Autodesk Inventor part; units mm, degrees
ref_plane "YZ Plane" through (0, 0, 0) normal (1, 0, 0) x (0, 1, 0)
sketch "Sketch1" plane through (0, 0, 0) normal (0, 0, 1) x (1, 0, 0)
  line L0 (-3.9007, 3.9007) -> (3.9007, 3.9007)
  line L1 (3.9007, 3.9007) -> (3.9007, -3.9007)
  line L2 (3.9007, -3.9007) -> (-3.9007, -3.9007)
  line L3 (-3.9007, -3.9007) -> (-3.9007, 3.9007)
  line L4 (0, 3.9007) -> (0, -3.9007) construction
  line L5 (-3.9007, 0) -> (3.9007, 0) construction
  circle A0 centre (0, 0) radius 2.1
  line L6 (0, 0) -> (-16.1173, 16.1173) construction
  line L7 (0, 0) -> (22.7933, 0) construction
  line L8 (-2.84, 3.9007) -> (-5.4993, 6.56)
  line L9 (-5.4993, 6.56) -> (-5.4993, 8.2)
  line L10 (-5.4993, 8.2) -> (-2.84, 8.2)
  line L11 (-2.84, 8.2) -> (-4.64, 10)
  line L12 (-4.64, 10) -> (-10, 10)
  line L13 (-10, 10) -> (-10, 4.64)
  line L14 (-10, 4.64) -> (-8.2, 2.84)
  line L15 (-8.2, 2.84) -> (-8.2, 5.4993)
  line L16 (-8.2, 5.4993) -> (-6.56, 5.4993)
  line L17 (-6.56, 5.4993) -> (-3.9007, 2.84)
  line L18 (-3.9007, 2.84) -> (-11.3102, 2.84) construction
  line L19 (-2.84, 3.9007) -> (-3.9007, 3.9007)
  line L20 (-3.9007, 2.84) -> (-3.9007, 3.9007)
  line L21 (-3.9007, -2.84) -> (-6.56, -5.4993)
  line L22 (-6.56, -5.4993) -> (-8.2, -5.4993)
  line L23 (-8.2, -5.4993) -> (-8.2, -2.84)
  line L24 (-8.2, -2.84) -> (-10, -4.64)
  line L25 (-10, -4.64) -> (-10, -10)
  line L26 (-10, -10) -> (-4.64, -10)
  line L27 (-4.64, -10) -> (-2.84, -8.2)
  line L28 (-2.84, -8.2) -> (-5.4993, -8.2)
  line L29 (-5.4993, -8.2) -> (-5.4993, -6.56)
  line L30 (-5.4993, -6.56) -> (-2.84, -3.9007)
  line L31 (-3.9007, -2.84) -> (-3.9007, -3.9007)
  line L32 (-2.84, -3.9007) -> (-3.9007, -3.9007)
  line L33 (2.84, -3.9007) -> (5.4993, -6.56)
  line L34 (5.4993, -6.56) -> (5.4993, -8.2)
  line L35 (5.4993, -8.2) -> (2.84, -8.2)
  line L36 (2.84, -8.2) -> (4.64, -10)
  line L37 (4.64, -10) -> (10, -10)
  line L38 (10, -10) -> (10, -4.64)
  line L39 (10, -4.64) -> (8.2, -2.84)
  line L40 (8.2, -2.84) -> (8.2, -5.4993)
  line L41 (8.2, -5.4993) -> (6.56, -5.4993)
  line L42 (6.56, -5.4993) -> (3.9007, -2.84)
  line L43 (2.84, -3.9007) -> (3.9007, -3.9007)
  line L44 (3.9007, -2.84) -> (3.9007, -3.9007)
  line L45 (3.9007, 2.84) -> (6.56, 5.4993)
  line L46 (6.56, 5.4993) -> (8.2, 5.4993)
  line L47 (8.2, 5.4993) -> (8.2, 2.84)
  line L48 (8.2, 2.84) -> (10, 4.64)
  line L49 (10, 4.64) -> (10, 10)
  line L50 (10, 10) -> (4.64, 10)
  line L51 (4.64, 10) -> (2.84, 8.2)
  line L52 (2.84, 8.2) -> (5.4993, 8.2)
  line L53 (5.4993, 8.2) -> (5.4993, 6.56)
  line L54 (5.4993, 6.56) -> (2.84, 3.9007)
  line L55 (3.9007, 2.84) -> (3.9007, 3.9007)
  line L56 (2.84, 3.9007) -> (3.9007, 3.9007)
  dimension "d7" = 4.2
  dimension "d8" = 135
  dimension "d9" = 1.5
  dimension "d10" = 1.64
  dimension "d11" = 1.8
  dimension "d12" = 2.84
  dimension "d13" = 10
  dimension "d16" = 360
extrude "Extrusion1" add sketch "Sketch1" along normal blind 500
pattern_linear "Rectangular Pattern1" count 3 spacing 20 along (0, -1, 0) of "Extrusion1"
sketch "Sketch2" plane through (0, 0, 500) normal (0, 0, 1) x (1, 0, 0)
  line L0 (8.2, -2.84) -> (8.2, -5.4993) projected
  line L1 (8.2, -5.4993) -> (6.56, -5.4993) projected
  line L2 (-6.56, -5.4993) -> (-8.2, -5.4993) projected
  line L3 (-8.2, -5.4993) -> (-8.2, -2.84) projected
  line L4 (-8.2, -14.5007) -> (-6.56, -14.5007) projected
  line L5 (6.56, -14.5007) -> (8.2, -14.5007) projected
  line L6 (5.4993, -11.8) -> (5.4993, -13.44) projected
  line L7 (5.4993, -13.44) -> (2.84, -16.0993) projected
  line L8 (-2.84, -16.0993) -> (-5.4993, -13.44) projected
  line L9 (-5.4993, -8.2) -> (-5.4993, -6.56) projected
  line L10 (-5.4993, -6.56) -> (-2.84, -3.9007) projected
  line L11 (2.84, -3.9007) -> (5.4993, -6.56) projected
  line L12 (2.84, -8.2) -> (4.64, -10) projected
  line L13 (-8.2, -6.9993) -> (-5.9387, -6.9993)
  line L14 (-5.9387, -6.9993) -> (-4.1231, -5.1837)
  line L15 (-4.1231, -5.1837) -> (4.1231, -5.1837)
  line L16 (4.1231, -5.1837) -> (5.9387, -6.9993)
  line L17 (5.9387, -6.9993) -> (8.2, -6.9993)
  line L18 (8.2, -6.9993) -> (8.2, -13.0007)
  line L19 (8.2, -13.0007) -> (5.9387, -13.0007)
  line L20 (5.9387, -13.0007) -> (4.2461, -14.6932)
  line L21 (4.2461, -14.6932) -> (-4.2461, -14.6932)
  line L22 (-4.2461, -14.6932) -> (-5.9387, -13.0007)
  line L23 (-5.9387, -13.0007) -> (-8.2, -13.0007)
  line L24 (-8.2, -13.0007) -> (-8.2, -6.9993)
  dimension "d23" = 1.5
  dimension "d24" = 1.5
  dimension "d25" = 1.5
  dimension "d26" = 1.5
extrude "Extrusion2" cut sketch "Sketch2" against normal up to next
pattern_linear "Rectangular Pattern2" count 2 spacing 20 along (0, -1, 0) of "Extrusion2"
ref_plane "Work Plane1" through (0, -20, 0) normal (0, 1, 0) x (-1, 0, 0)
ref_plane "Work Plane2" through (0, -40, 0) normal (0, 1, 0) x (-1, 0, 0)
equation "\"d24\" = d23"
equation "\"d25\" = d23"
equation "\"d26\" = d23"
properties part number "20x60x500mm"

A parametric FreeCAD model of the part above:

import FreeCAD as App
import Part
import Sketcher

V = App.Vector

doc = App.newDocument("Part")
body = doc.addObject("PartDesign::Body", "Body")

sketch1 = body.newObject("Sketcher::SketchObject", "Sketch")
sketch1.AttachmentSupport = (doc.getObject("XY_Plane"), [""])
sketch1.MapMode = "FlatFace"
sketch1.addGeometry(Part.LineSegment(V(-6.6, 5.5, 0), V(-3.9, 2.8, 0)), False)
sketch1.addGeometry(Part.LineSegment(V(-3.9, 2.8, 0), V(-3.9, -2.8, 0)), False)
sketch1.addGeometry(Part.LineSegment(V(-3.9, -2.8, 0), V(-6.6, -5.5, 0)), False)
sketch1.addGeometry(Part.LineSegment(V(-6.6, -5.5, 0), V(-8.2, -5.5, 0)), False)
sketch1.addGeometry(Part.LineSegment(V(-8.2, -5.5, 0), V(-8.2, -2.8, 0)), False)
sketch1.addGeometry(Part.LineSegment(V(-8.2, -2.8, 0), V(-10, -4.6, 0)), False)
sketch1.addGeometry(Part.LineSegment(V(-10, -4.6, 0), V(-10, -10, 0)), False)
sketch1.addGeometry(Part.LineSegment(V(-10, -10, 0), V(-4.6, -10, 0)), False)
sketch1.addGeometry(Part.LineSegment(V(-4.6, -10, 0), V(-2.8, -8.2, 0)), False)
sketch1.addGeometry(Part.LineSegment(V(-2.8, -8.2, 0), V(-5.5, -8.2, 0)), False)
sketch1.addGeometry(Part.LineSegment(V(-5.5, -8.2, 0), V(-5.5, -6.6, 0)), False)
sketch1.addGeometry(Part.LineSegment(V(-5.5, -6.6, 0), V(-2.8, -3.9, 0)), False)
sketch1.addGeometry(Part.LineSegment(V(-2.8, -3.9, 0), V(2.8, -3.9, 0)), False)
sketch1.addGeometry(Part.LineSegment(V(2.8, -3.9, 0), V(5.5, -6.6, 0)), False)
sketch1.addGeometry(Part.LineSegment(V(5.5, -6.6, 0), V(5.5, -8.2, 0)), False)
sketch1.addGeometry(Part.LineSegment(V(5.5, -8.2, 0), V(2.8, -8.2, 0)), False)
sketch1.addGeometry(Part.LineSegment(V(2.8, -8.2, 0), V(4.6, -10, 0)), False)
sketch1.addGeometry(Part.LineSegment(V(4.6, -10, 0), V(10, -10, 0)), False)
sketch1.addGeometry(Part.LineSegment(V(10, -10, 0), V(10, -4.6, 0)), False)
sketch1.addGeometry(Part.LineSegment(V(10, -4.6, 0), V(8.2, -2.8, 0)), False)
sketch1.addGeometry(Part.LineSegment(V(8.2, -2.8, 0), V(8.2, -5.5, 0)), False)
sketch1.addGeometry(Part.LineSegment(V(8.2, -5.5, 0), V(6.6, -5.5, 0)), False)
sketch1.addGeometry(Part.LineSegment(V(6.6, -5.5, 0), V(3.9, -2.8, 0)), False)
sketch1.addGeometry(Part.LineSegment(V(3.9, -2.8, 0), V(3.9, 2.8, 0)), False)
sketch1.addGeometry(Part.LineSegment(V(3.9, 2.8, 0), V(6.6, 5.5, 0)), False)
sketch1.addGeometry(Part.LineSegment(V(6.6, 5.5, 0), V(8.2, 5.5, 0)), False)
sketch1.addGeometry(Part.LineSegment(V(8.2, 5.5, 0), V(8.2, 2.8, 0)), False)
sketch1.addGeometry(Part.LineSegment(V(8.2, 2.8, 0), V(10, 4.6, 0)), False)
sketch1.addGeometry(Part.LineSegment(V(10, 4.6, 0), V(10, 10, 0)), False)
sketch1.addGeometry(Part.LineSegment(V(10, 10, 0), V(4.6, 10, 0)), False)
sketch1.addGeometry(Part.LineSegment(V(4.6, 10, 0), V(2.8, 8.2, 0)), False)
sketch1.addGeometry(Part.LineSegment(V(2.8, 8.2, 0), V(5.5, 8.2, 0)), False)
sketch1.addGeometry(Part.LineSegment(V(5.5, 8.2, 0), V(5.5, 6.6, 0)), False)
sketch1.addGeometry(Part.LineSegment(V(5.5, 6.6, 0), V(2.8, 3.9, 0)), False)
sketch1.addGeometry(Part.LineSegment(V(2.8, 3.9, 0), V(-2.8, 3.9, 0)), False)
sketch1.addGeometry(Part.LineSegment(V(-2.8, 3.9, 0), V(-5.5, 6.6, 0)), False)
sketch1.addGeometry(Part.LineSegment(V(-5.5, 6.6, 0), V(-5.5, 8.2, 0)), False)
sketch1.addGeometry(Part.LineSegment(V(-5.5, 8.2, 0), V(-2.8, 8.2, 0)), False)
sketch1.addGeometry(Part.LineSegment(V(-2.8, 8.2, 0), V(-4.6, 10, 0)), False)
sketch1.addGeometry(Part.LineSegment(V(-4.6, 10, 0), V(-10, 10, 0)), False)
sketch1.addGeometry(Part.LineSegment(V(-10, 10, 0), V(-10, 4.6, 0)), False)
sketch1.addGeometry(Part.LineSegment(V(-10, 4.6, 0), V(-8.2, 2.8, 0)), False)
sketch1.addGeometry(Part.LineSegment(V(-8.2, 2.8, 0), V(-8.2, 5.5, 0)), False)
sketch1.addGeometry(Part.LineSegment(V(-8.2, 5.5, 0), V(-6.6, 5.5, 0)), False)
sketch1.addGeometry(Part.Circle(V(0, 0, 0), V(0, 0, 1), 2.1), False)
sketch1.addConstraint(Sketcher.Constraint("Coincident", 0, 2, 1, 1))
sketch1.addConstraint(Sketcher.Constraint("Coincident", 1, 2, 2, 1))
sketch1.addConstraint(Sketcher.Constraint("Coincident", 2, 2, 3, 1))
sketch1.addConstraint(Sketcher.Constraint("Coincident", 3, 2, 4, 1))
sketch1.addConstraint(Sketcher.Constraint("Coincident", 4, 2, 5, 1))
sketch1.addConstraint(Sketcher.Constraint("Coincident", 5, 2, 6, 1))
sketch1.addConstraint(Sketcher.Constraint("Coincident", 6, 2, 7, 1))
sketch1.addConstraint(Sketcher.Constraint("Coincident", 7, 2, 8, 1))
sketch1.addConstraint(Sketcher.Constraint("Coincident", 8, 2, 9, 1))
sketch1.addConstraint(Sketcher.Constraint("Coincident", 9, 2, 10, 1))
sketch1.addConstraint(Sketcher.Constraint("Coincident", 10, 2, 11, 1))
sketch1.addConstraint(Sketcher.Constraint("Coincident", 11, 2, 12, 1))
sketch1.addConstraint(Sketcher.Constraint("Coincident", 12, 2, 13, 1))
sketch1.addConstraint(Sketcher.Constraint("Coincident", 13, 2, 14, 1))
sketch1.addConstraint(Sketcher.Constraint("Coincident", 14, 2, 15, 1))
sketch1.addConstraint(Sketcher.Constraint("Coincident", 15, 2, 16, 1))
sketch1.addConstraint(Sketcher.Constraint("Coincident", 16, 2, 17, 1))
sketch1.addConstraint(Sketcher.Constraint("Coincident", 17, 2, 18, 1))
sketch1.addConstraint(Sketcher.Constraint("Coincident", 18, 2, 19, 1))
sketch1.addConstraint(Sketcher.Constraint("Coincident", 19, 2, 20, 1))
sketch1.addConstraint(Sketcher.Constraint("Coincident", 20, 2, 21, 1))
sketch1.addConstraint(Sketcher.Constraint("Coincident", 21, 2, 22, 1))
sketch1.addConstraint(Sketcher.Constraint("Coincident", 22, 2, 23, 1))
sketch1.addConstraint(Sketcher.Constraint("Coincident", 23, 2, 24, 1))
sketch1.addConstraint(Sketcher.Constraint("Coincident", 24, 2, 25, 1))
sketch1.addConstraint(Sketcher.Constraint("Coincident", 25, 2, 26, 1))
sketch1.addConstraint(Sketcher.Constraint("Coincident", 26, 2, 27, 1))
sketch1.addConstraint(Sketcher.Constraint("Coincident", 27, 2, 28, 1))
sketch1.addConstraint(Sketcher.Constraint("Coincident", 28, 2, 29, 1))
sketch1.addConstraint(Sketcher.Constraint("Coincident", 29, 2, 30, 1))
sketch1.addConstraint(Sketcher.Constraint("Coincident", 30, 2, 31, 1))
sketch1.addConstraint(Sketcher.Constraint("Coincident", 31, 2, 32, 1))
sketch1.addConstraint(Sketcher.Constraint("Coincident", 32, 2, 33, 1))
sketch1.addConstraint(Sketcher.Constraint("Coincident", 33, 2, 34, 1))
sketch1.addConstraint(Sketcher.Constraint("Coincident", 34, 2, 35, 1))
sketch1.addConstraint(Sketcher.Constraint("Coincident", 35, 2, 36, 1))
sketch1.addConstraint(Sketcher.Constraint("Coincident", 36, 2, 37, 1))
sketch1.addConstraint(Sketcher.Constraint("Coincident", 37, 2, 38, 1))
sketch1.addConstraint(Sketcher.Constraint("Coincident", 38, 2, 39, 1))
sketch1.addConstraint(Sketcher.Constraint("Coincident", 39, 2, 40, 1))
sketch1.addConstraint(Sketcher.Constraint("Coincident", 40, 2, 41, 1))
sketch1.addConstraint(Sketcher.Constraint("Coincident", 41, 2, 42, 1))
sketch1.addConstraint(Sketcher.Constraint("Coincident", 42, 2, 43, 1))
sketch1.addConstraint(Sketcher.Constraint("Coincident", 43, 2, 0, 1))
sketch1.addConstraint(Sketcher.Constraint("Vertical", 1))
sketch1.addConstraint(Sketcher.Constraint("Horizontal", 3))
sketch1.addConstraint(Sketcher.Constraint("Vertical", 4))
sketch1.addConstraint(Sketcher.Constraint("Vertical", 6))
sketch1.addConstraint(Sketcher.Constraint("Horizontal", 7))
sketch1.addConstraint(Sketcher.Constraint("Horizontal", 9))
sketch1.addConstraint(Sketcher.Constraint("Vertical", 10))
sketch1.addConstraint(Sketcher.Constraint("Horizontal", 12))
sketch1.addConstraint(Sketcher.Constraint("Vertical", 14))
sketch1.addConstraint(Sketcher.Constraint("Horizontal", 15))
sketch1.addConstraint(Sketcher.Constraint("Horizontal", 17))
sketch1.addConstraint(Sketcher.Constraint("Vertical", 18))
sketch1.addConstraint(Sketcher.Constraint("Vertical", 20))
sketch1.addConstraint(Sketcher.Constraint("Horizontal", 21))
sketch1.addConstraint(Sketcher.Constraint("Vertical", 23))
sketch1.addConstraint(Sketcher.Constraint("Horizontal", 25))
sketch1.addConstraint(Sketcher.Constraint("Vertical", 26))
sketch1.addConstraint(Sketcher.Constraint("Vertical", 28))
sketch1.addConstraint(Sketcher.Constraint("Horizontal", 29))
sketch1.addConstraint(Sketcher.Constraint("Horizontal", 31))
sketch1.addConstraint(Sketcher.Constraint("Vertical", 32))
sketch1.addConstraint(Sketcher.Constraint("Horizontal", 34))
sketch1.addConstraint(Sketcher.Constraint("Vertical", 36))
sketch1.addConstraint(Sketcher.Constraint("Horizontal", 37))
sketch1.addConstraint(Sketcher.Constraint("Horizontal", 39))
sketch1.addConstraint(Sketcher.Constraint("Vertical", 40))
sketch1.addConstraint(Sketcher.Constraint("Vertical", 42))
sketch1.addConstraint(Sketcher.Constraint("Horizontal", 43))
sketch1.addConstraint(Sketcher.Constraint("Coincident", 44, 3, -1, 1))
sketch1.addConstraint(Sketcher.Constraint("Symmetric", 0, 2, 22, 2, -1, 1))
sketch1.addConstraint(Sketcher.Constraint("Symmetric", 2, 2, 24, 2, -1, 1))
sketch1.addConstraint(Sketcher.Constraint("Symmetric", 4, 2, 26, 2, -1, 1))
sketch1.addConstraint(Sketcher.Constraint("Symmetric", 5, 2, 27, 2, -1, 1))
sketch1.addConstraint(Sketcher.Constraint("Symmetric", 7, 2, 29, 2, -1, 1))
sketch1.addConstraint(Sketcher.Constraint("Symmetric", 8, 2, 30, 2, -1, 1))
sketch1.addConstraint(Sketcher.Constraint("Symmetric", 10, 2, 32, 2, -1, 1))
sketch1.addConstraint(Sketcher.Constraint("Symmetric", 11, 2, 33, 2, -1, 1))
sketch1.addConstraint(Sketcher.Constraint("Symmetric", 13, 2, 35, 2, -1, 1))
sketch1.addConstraint(Sketcher.Constraint("Symmetric", 15, 2, 37, 2, -1, 1))
sketch1.addConstraint(Sketcher.Constraint("Symmetric", 16, 2, 38, 2, -1, 1))
sketch1.addConstraint(Sketcher.Constraint("Symmetric", 18, 2, 40, 2, -1, 1))
sketch1.addConstraint(Sketcher.Constraint("Symmetric", 19, 2, 41, 2, -1, 1))
sketch1.addConstraint(Sketcher.Constraint("Symmetric", 21, 2, 43, 2, -1, 1))
sketch1.addConstraint(Sketcher.Constraint("Symmetric", 10, 2, 13, 2, -2))
sketch1.addConstraint(Sketcher.Constraint("Symmetric", 8, 2, 15, 2, -2))
sketch1.addConstraint(Sketcher.Constraint("Symmetric", 7, 2, 16, 2, -2))
sketch1.addConstraint(Sketcher.Constraint("Symmetric", 5, 2, 18, 2, -2))
sketch1.addConstraint(Sketcher.Constraint("Symmetric", 4, 2, 19, 2, -2))
sketch1.addConstraint(Sketcher.Constraint("Symmetric", 2, 2, 21, 2, -2))
sketch1.addConstraint(Sketcher.Constraint("Perpendicular", 0, 2))
sketch1.addConstraint(Sketcher.Constraint("Parallel", 2, 5))
sketch1.addConstraint(Sketcher.Constraint("Parallel", 5, 8))
sketch1.addConstraint(Sketcher.Constraint("Parallel", 8, 11))
sketch1.addConstraint(Sketcher.Constraint("Perpendicular", 11, 13))
sketch1.addConstraint(Sketcher.Constraint("Parallel", 13, 16))
sketch1.addConstraint(Sketcher.Constraint("Perpendicular", 22, 24))
sketch1.addConstraint(Sketcher.Constraint("Perpendicular", 33, 35))
sketch1.addConstraint(Sketcher.Constraint("Horizontal", 1, 2, 4, 2))
sketch1.addConstraint(Sketcher.Constraint("Vertical", 8, 2, 11, 2))
sketch1.addConstraint(Sketcher.Constraint("Equal", 34, 1))
sketch1.addConstraint(Sketcher.Constraint("Equal", 37, 4))
sketch1.addConstraint(Sketcher.Constraint("Equal", 39, 6))
sketch1.addConstraint(Sketcher.Constraint("Equal", 43, 10))
sketch1.addConstraint(Sketcher.Constraint("Equal", 5, 8))
sketch1.addConstraint(Sketcher.Constraint("Diameter", 44, 4.2))
sketch1.addConstraint(Sketcher.Constraint("DistanceX", 5, 2, -1, 1, 10.0))
sketch1.addConstraint(Sketcher.Constraint("DistanceX", 3, 2, 3, 1, 1.64))
sketch1.addConstraint(Sketcher.Constraint("DistanceX", 5, 2, 3, 2, 1.8))
sketch1.addConstraint(Sketcher.Constraint("DistanceY", -1, 1, 0, 2, 2.84))
sketch1.addConstraint(Sketcher.Constraint("DistanceX", 9, 2, 9, 1, 2.6593))
pad1 = body.newObject("PartDesign::Pad", "Pad")
pad1.Profile = sketch1
pad1.Length = 500
doc.recompute()

linearpattern = body.newObject("PartDesign::LinearPattern", "LinearPattern")
linearpattern.Originals = [pad1]
linearpattern.Direction = (doc.getObject("Y_Axis"), [""])
linearpattern.Mode = "offset"
linearpattern.Offset = 20
linearpattern.Occurrences = 3
linearpattern.Reversed = True
body.Tip = linearpattern

sketch2 = body.newObject("Sketcher::SketchObject", "Sketch001")
sketch2.AttachmentSupport = (doc.getObject("XY_Plane"), [""])
sketch2.MapMode = "FlatFace"
sketch2.AttachmentOffset = App.Placement(V(0, 0, 500), App.Rotation())
sketch2.addGeometry(Part.LineSegment(V(4.2, -14.7, 0), V(5.5, -13.4, 0)), False)
sketch2.addGeometry(Part.LineSegment(V(5.5, -13.4, 0), V(5.9, -13, 0)), False)
sketch2.addGeometry(Part.LineSegment(V(5.9, -13, 0), V(8.2, -13, 0)), False)
sketch2.addGeometry(Part.LineSegment(V(8.2, -13, 0), V(8.2, -7, 0)), False)
sketch2.addGeometry(Part.LineSegment(V(8.2, -7, 0), V(5.9, -7, 0)), False)
sketch2.addGeometry(Part.LineSegment(V(5.9, -7, 0), V(5.5, -6.6, 0)), False)
sketch2.addGeometry(Part.LineSegment(V(5.5, -6.6, 0), V(4.1, -5.2, 0)), False)
sketch2.addGeometry(Part.LineSegment(V(4.1, -5.2, 0), V(-4.1, -5.2, 0)), False)
sketch2.addGeometry(Part.LineSegment(V(-4.1, -5.2, 0), V(-5.5, -6.6, 0)), False)
sketch2.addGeometry(Part.LineSegment(V(-5.5, -6.6, 0), V(-5.9, -7, 0)), False)
sketch2.addGeometry(Part.LineSegment(V(-5.9, -7, 0), V(-8.2, -7, 0)), False)
sketch2.addGeometry(Part.LineSegment(V(-8.2, -7, 0), V(-8.2, -13, 0)), False)
sketch2.addGeometry(Part.LineSegment(V(-8.2, -13, 0), V(-5.9, -13, 0)), False)
sketch2.addGeometry(Part.LineSegment(V(-5.9, -13, 0), V(-5.5, -13.4, 0)), False)
sketch2.addGeometry(Part.LineSegment(V(-5.5, -13.4, 0), V(-4.2, -14.7, 0)), False)
sketch2.addGeometry(Part.LineSegment(V(-4.2, -14.7, 0), V(4.2, -14.7, 0)), False)
sketch2.addConstraint(Sketcher.Constraint("Coincident", 0, 2, 1, 1))
sketch2.addConstraint(Sketcher.Constraint("Coincident", 1, 2, 2, 1))
sketch2.addConstraint(Sketcher.Constraint("Coincident", 2, 2, 3, 1))
sketch2.addConstraint(Sketcher.Constraint("Coincident", 3, 2, 4, 1))
sketch2.addConstraint(Sketcher.Constraint("Coincident", 4, 2, 5, 1))
sketch2.addConstraint(Sketcher.Constraint("Coincident", 5, 2, 6, 1))
sketch2.addConstraint(Sketcher.Constraint("Coincident", 6, 2, 7, 1))
sketch2.addConstraint(Sketcher.Constraint("Coincident", 7, 2, 8, 1))
sketch2.addConstraint(Sketcher.Constraint("Coincident", 8, 2, 9, 1))
sketch2.addConstraint(Sketcher.Constraint("Coincident", 9, 2, 10, 1))
sketch2.addConstraint(Sketcher.Constraint("Coincident", 10, 2, 11, 1))
sketch2.addConstraint(Sketcher.Constraint("Coincident", 11, 2, 12, 1))
sketch2.addConstraint(Sketcher.Constraint("Coincident", 12, 2, 13, 1))
sketch2.addConstraint(Sketcher.Constraint("Coincident", 13, 2, 14, 1))
sketch2.addConstraint(Sketcher.Constraint("Coincident", 14, 2, 15, 1))
sketch2.addConstraint(Sketcher.Constraint("Coincident", 15, 2, 0, 1))
sketch2.addConstraint(Sketcher.Constraint("Horizontal", 2))
sketch2.addConstraint(Sketcher.Constraint("Vertical", 3))
sketch2.addConstraint(Sketcher.Constraint("Horizontal", 4))
sketch2.addConstraint(Sketcher.Constraint("Horizontal", 7))
sketch2.addConstraint(Sketcher.Constraint("Horizontal", 10))
sketch2.addConstraint(Sketcher.Constraint("Vertical", 11))
sketch2.addConstraint(Sketcher.Constraint("Horizontal", 12))
sketch2.addConstraint(Sketcher.Constraint("Horizontal", 15))
sketch2.addConstraint(Sketcher.Constraint("Symmetric", 5, 2, 8, 2, -2))
sketch2.addConstraint(Sketcher.Constraint("Symmetric", 4, 2, 9, 2, -2))
sketch2.addConstraint(Sketcher.Constraint("Symmetric", 2, 2, 11, 2, -2))
sketch2.addConstraint(Sketcher.Constraint("Symmetric", 0, 2, 13, 2, -2))
sketch2.addConstraint(Sketcher.Constraint("Parallel", 0, 1))
sketch2.addConstraint(Sketcher.Constraint("Perpendicular", 1, 5))
sketch2.addConstraint(Sketcher.Constraint("Parallel", 5, 6))
sketch2.addConstraint(Sketcher.Constraint("Perpendicular", 6, 8))
sketch2.addConstraint(Sketcher.Constraint("Parallel", 8, 9))
sketch2.addConstraint(Sketcher.Constraint("Perpendicular", 9, 13))
sketch2.addConstraint(Sketcher.Constraint("Parallel", 13, 14))
sketch2.addConstraint(Sketcher.Constraint("Vertical", 1, 2, 4, 2))
sketch2.addConstraint(Sketcher.Constraint("Vertical", 0, 2, 5, 2))
sketch2.addConstraint(Sketcher.Constraint("DistanceX", -1, 1, 2, 2, 8.2))
sketch2.addConstraint(Sketcher.Constraint("DistanceY", 0, 2, -1, 1, 13.44))
sketch2.addConstraint(Sketcher.Constraint("DistanceY", 5, 2, -1, 1, 6.56))
sketch2.addConstraint(Sketcher.Constraint("DistanceX", 2, 1, 2, 2, 2.2613))
sketch2.addConstraint(Sketcher.Constraint("DistanceX", 7, 2, 7, 1, 8.2462))
sketch2.addConstraint(Sketcher.Constraint("DistanceX", 15, 1, 15, 2, 8.4922))
sketch2.addConstraint(Sketcher.Constraint("DistanceY", 3, 1, 3, 2, 6.0014))
pocket1 = body.newObject("PartDesign::Pocket", "Pocket")
pocket1.Profile = sketch2
pocket1.Length = 500
doc.recompute()

linearpattern2 = body.newObject("PartDesign::LinearPattern", "LinearPattern001")
linearpattern2.Originals = [pocket1]
linearpattern2.Direction = (doc.getObject("Y_Axis"), [""])
linearpattern2.Mode = "offset"
linearpattern2.Offset = 20
linearpattern2.Occurrences = 2
linearpattern2.Reversed = True
body.Tip = linearpattern2

doc.recompute()
